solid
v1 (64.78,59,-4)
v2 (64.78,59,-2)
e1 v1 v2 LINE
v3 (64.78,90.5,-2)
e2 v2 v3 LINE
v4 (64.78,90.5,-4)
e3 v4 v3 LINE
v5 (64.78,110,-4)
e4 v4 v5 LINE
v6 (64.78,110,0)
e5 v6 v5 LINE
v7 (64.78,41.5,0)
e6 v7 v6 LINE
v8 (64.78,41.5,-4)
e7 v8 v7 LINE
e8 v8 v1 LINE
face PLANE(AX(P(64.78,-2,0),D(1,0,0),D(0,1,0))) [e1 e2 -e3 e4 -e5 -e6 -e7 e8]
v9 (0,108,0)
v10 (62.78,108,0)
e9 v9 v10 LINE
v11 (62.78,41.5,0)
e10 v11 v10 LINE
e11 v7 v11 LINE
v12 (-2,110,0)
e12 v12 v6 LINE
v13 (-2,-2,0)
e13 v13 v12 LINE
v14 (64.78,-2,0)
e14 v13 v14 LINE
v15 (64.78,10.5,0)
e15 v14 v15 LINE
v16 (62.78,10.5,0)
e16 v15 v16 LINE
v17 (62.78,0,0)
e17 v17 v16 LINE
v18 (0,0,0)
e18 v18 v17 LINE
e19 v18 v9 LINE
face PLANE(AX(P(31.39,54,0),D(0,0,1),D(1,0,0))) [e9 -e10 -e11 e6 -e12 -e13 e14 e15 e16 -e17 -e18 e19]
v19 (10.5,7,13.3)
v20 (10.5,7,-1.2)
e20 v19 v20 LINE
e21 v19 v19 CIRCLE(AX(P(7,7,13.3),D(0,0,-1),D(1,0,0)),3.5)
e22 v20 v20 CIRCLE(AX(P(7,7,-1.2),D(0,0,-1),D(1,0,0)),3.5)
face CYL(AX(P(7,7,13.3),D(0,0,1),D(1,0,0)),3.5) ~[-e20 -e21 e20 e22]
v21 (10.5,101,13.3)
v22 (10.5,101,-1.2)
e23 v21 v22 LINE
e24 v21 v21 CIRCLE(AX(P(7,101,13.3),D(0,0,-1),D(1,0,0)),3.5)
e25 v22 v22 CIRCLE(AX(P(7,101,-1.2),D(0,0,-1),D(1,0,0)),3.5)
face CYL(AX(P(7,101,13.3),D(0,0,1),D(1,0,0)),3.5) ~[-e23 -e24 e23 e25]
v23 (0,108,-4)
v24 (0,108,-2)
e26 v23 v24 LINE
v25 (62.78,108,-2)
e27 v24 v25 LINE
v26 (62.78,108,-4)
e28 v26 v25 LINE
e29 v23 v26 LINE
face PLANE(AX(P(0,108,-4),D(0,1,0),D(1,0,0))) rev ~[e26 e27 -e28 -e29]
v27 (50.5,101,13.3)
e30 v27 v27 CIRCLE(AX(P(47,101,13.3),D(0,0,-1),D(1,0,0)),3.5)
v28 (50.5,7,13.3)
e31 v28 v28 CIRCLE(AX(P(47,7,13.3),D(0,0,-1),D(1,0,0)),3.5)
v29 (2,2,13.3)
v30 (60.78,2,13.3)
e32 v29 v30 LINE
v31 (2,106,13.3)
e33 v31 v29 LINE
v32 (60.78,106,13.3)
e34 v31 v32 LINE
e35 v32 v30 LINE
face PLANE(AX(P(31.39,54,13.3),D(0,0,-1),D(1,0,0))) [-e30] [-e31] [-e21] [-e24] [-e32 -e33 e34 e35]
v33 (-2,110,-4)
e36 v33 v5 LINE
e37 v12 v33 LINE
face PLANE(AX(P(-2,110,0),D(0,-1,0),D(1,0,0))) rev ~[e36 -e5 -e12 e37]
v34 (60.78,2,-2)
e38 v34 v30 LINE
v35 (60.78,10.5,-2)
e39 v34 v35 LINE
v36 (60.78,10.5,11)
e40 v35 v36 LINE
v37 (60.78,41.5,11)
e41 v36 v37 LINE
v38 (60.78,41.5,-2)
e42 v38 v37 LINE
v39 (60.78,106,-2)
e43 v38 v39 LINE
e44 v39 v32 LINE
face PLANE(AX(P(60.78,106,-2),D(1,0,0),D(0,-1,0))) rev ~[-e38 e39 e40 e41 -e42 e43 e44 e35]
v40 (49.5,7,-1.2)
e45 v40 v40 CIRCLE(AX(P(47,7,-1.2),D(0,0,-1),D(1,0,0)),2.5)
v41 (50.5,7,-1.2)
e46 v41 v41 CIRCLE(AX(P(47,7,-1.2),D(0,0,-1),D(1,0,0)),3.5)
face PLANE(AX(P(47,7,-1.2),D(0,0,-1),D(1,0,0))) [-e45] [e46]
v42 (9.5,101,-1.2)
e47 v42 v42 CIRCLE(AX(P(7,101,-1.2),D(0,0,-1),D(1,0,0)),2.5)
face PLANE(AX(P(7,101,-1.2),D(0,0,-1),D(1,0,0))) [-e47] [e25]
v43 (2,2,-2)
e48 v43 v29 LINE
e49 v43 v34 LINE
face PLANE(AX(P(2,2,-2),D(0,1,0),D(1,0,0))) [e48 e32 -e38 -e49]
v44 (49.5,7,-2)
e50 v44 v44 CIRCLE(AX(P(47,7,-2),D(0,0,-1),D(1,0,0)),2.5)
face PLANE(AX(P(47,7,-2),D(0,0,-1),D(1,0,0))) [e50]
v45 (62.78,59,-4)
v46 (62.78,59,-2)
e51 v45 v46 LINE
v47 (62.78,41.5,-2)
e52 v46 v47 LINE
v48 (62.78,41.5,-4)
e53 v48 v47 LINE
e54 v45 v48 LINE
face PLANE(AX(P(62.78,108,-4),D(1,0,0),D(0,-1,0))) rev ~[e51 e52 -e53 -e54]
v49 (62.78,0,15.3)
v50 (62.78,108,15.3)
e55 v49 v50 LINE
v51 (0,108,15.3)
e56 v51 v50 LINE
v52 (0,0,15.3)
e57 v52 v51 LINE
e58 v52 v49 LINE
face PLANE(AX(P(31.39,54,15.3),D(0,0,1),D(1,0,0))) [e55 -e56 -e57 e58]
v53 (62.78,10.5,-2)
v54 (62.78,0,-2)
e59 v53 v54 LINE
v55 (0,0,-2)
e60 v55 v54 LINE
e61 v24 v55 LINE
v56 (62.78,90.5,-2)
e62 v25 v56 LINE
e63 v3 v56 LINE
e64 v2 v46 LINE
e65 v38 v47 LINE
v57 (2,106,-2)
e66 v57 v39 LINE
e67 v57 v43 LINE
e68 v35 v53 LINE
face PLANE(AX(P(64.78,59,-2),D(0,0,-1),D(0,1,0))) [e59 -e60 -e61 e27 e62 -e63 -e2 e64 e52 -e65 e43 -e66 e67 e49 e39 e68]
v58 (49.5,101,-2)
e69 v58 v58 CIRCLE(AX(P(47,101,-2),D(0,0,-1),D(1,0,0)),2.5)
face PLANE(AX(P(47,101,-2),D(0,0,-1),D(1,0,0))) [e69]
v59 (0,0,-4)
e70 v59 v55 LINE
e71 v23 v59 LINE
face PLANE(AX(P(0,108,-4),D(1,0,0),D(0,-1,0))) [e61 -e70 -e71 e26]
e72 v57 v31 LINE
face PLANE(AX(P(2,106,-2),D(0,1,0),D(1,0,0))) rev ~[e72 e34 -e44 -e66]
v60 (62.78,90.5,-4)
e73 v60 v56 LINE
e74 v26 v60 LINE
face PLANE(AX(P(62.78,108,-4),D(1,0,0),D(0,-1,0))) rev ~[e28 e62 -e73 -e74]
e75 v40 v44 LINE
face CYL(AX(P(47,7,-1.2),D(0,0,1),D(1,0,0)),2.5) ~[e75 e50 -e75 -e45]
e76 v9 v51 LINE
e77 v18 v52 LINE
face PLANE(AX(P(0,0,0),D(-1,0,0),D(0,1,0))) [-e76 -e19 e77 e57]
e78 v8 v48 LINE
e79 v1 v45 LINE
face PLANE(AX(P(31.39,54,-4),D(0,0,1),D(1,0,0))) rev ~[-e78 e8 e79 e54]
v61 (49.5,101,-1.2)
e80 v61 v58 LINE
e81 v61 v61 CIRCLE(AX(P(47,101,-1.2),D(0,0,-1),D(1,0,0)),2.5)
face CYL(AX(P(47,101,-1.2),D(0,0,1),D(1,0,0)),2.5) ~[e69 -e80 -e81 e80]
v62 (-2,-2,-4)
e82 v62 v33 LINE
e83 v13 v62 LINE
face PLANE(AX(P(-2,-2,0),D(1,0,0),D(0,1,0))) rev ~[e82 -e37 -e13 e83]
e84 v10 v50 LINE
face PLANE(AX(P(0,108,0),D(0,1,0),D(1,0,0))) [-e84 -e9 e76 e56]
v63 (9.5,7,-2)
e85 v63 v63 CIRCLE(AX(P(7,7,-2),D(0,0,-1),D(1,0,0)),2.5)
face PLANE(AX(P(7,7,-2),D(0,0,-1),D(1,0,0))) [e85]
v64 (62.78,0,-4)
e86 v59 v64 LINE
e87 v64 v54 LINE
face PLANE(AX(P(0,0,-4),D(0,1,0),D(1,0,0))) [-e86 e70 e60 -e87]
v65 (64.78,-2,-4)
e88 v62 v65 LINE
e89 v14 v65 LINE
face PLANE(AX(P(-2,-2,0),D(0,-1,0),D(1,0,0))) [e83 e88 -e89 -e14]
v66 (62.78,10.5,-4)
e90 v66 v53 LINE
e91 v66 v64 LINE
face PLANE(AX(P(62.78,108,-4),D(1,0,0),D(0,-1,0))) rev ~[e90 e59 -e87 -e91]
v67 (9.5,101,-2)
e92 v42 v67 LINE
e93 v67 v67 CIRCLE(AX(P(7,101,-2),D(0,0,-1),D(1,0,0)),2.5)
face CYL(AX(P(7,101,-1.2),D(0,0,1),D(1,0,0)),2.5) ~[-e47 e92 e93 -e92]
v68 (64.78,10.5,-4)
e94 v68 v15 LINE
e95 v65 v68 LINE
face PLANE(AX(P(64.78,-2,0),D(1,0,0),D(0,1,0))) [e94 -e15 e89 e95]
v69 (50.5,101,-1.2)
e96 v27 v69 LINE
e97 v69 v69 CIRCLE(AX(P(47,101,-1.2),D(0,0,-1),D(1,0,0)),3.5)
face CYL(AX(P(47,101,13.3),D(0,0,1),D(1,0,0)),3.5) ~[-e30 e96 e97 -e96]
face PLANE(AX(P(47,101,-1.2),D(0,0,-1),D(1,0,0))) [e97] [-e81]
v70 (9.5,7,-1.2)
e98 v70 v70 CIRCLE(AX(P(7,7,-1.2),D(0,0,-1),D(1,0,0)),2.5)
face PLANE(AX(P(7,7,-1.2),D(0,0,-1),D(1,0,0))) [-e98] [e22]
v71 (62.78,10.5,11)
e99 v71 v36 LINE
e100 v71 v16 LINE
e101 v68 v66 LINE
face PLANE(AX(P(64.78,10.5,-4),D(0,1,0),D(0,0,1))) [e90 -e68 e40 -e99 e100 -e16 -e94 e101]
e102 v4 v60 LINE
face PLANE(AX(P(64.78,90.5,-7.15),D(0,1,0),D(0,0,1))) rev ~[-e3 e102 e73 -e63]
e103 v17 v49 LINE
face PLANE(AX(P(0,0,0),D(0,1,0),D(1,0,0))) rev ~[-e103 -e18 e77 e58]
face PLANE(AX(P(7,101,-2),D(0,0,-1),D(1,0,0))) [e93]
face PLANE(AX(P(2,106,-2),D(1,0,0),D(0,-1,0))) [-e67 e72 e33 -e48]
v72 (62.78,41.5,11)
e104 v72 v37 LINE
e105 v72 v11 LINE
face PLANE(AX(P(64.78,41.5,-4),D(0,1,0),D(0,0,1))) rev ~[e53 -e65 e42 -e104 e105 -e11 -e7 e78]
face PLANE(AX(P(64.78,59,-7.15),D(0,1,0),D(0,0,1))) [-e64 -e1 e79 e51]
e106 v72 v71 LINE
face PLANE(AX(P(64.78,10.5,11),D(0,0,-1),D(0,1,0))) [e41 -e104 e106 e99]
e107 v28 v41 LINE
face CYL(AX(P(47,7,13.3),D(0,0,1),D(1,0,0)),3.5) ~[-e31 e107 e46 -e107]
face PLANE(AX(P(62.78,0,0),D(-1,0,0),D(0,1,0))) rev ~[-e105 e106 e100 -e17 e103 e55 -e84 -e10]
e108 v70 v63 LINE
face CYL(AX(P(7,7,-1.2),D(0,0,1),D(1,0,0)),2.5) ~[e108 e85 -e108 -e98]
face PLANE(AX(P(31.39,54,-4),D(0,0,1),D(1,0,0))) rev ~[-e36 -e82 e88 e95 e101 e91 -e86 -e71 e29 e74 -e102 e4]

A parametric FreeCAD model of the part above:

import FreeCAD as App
import Part
import Sketcher
from FreeCAD import Vector
Q = App.Units.Quantity

doc = App.newDocument("Part")
params = doc.addObject("Spreadsheet::Sheet", "Params")
for row, (alias, value) in enumerate([
    ("sketch1_height", "112 mm"),
    ("sketch1_width", "66.78 mm"),
    ("pad1_length", "4 mm"),
    ("sketch2_height", "108 mm"),
    ("sketch2_width", "62.78 mm"),
    ("pad2_length", "15.3 mm"),
    ("sketch3_height", "108 mm"),
    ("sketch3_width", "62.78 mm"),
    ("pocket1_length", "2 mm"),
    ("sketch4_height", "104 mm"),
    ("sketch4_width", "58.78 mm"),
    ("pocket2_length", "15.3 mm"),
    ("sketch5_diameter", "7 mm"),
    ("pad3_length", "14.5 mm"),
    ("sketch6_diameter", "5 mm"),
    ("pad4_length", "0.8 mm"),
    ("sketch7_width", "31.5 mm"),
    ("sketch7_height", "5.15 mm"),
    ("pocket3_length", "5 mm"),
    ("sketch8_width", "31 mm"),
    ("sketch8_height", "15 mm"),
    ("pocket4_length", "5 mm"),
], start=1):
    params.set(f"A{row}", alias)
    params.set(f"B{row}", "=" + value)
    params.setAlias(f"B{row}", alias)

body = doc.addObject("PartDesign::Body", "Body")

# Sketch on XY plane
sketch1 = body.newObject("Sketcher::SketchObject", "Sketch")
sketch1.AttachmentSupport = (doc.getObject("XY_Plane"), [""])
sketch1.MapMode = "FlatFace"
sketch1.addGeometry([
    Part.LineSegment(Vector(-2, 110, 0), Vector(-2, -2, 0)),
    Part.LineSegment(Vector(-2, -2, 0), Vector(65, -2, 0)),
    Part.LineSegment(Vector(65, -2, 0), Vector(65, 110, 0)),
    Part.LineSegment(Vector(65, 110, 0), Vector(-2, 110, 0)),
], False)
sketch1.addConstraint([
    Sketcher.Constraint("Coincident", 0, 2, 1, 1),
    Sketcher.Constraint("Coincident", 1, 2, 2, 1),
    Sketcher.Constraint("Coincident", 2, 2, 3, 1),
    Sketcher.Constraint("Coincident", 3, 2, 0, 1),
    Sketcher.Constraint("Vertical", 0),
    Sketcher.Constraint("Horizontal", 1),
    Sketcher.Constraint("Vertical", 2),
    Sketcher.Constraint("Horizontal", 3),
    Sketcher.Constraint("DistanceY", 0, 2, 0, 1, Q("112 mm")),
    Sketcher.Constraint("DistanceX", 0, 2, -1, 1, Q("2 mm")),
    Sketcher.Constraint("DistanceY", 0, 2, -1, 1, Q("2 mm")),
    Sketcher.Constraint("DistanceX", 1, 1, 1, 2, Q("66.78 mm")),
])
sketch1.setExpression("Constraints[8]", "Params.sketch1_height")
sketch1.setExpression("Constraints[11]", "Params.sketch1_width")
pad1 = body.newObject("PartDesign::Pad", "Pad")
pad1.Profile = sketch1
pad1.setExpression("Length", "Params.pad1_length")
pad1.Reversed = True

# Sketch on XY plane
sketch2 = body.newObject("Sketcher::SketchObject", "Sketch001")
sketch2.AttachmentSupport = (doc.getObject("XY_Plane"), [""])
sketch2.MapMode = "FlatFace"
sketch2.addGeometry([
    Part.LineSegment(Vector(0, 108, 0), Vector(0, 0, 0)),
    Part.LineSegment(Vector(0, 0, 0), Vector(63, 0, 0)),
    Part.LineSegment(Vector(63, 0, 0), Vector(63, 108, 0)),
    Part.LineSegment(Vector(63, 108, 0), Vector(0, 108, 0)),
], False)
sketch2.addConstraint([
    Sketcher.Constraint("Coincident", 0, 2, 1, 1),
    Sketcher.Constraint("Coincident", 1, 2, 2, 1),
    Sketcher.Constraint("Coincident", 2, 2, 3, 1),
    Sketcher.Constraint("Coincident", 3, 2, 0, 1),
    Sketcher.Constraint("Vertical", 0),
    Sketcher.Constraint("Horizontal", 1),
    Sketcher.Constraint("Vertical", 2),
    Sketcher.Constraint("Horizontal", 3),
    Sketcher.Constraint("Coincident", 0, 2, -1, 1),
    Sketcher.Constraint("DistanceY", 0, 2, 0, 1, Q("108 mm")),
    Sketcher.Constraint("DistanceX", 1, 1, 1, 2, Q("62.78 mm")),
])
sketch2.setExpression("Constraints[9]", "Params.sketch2_height")
sketch2.setExpression("Constraints[10]", "Params.sketch2_width")
pad2 = body.newObject("PartDesign::Pad", "Pad001")
pad2.Profile = sketch2
pad2.setExpression("Length", "Params.pad2_length")

# Sketch on XY plane
sketch3 = body.newObject("Sketcher::SketchObject", "Sketch002")
sketch3.AttachmentSupport = (doc.getObject("XY_Plane"), [""])
sketch3.MapMode = "FlatFace"
sketch3.AttachmentOffset = App.Placement(Vector(0, 0, -4), App.Rotation())
sketch3.addGeometry([
    Part.LineSegment(Vector(0, 0, 0), Vector(0, 108, 0)),
    Part.LineSegment(Vector(0, 108, 0), Vector(63, 108, 0)),
    Part.LineSegment(Vector(63, 108, 0), Vector(63, 0, 0)),
    Part.LineSegment(Vector(63, 0, 0), Vector(0, 0, 0)),
], False)
sketch3.addConstraint([
    Sketcher.Constraint("Coincident", 0, 2, 1, 1),
    Sketcher.Constraint("Coincident", 1, 2, 2, 1),
    Sketcher.Constraint("Coincident", 2, 2, 3, 1),
    Sketcher.Constraint("Coincident", 3, 2, 0, 1),
    Sketcher.Constraint("Vertical", 0),
    Sketcher.Constraint("Horizontal", 1),
    Sketcher.Constraint("Vertical", 2),
    Sketcher.Constraint("Horizontal", 3),
    Sketcher.Constraint("Coincident", 3, 2, -1, 1),
    Sketcher.Constraint("DistanceY", 0, 1, 0, 2, Q("108 mm")),
    Sketcher.Constraint("DistanceX", 1, 1, 1, 2, Q("62.78 mm")),
])
sketch3.setExpression("Constraints[9]", "Params.sketch3_height")
sketch3.setExpression("Constraints[10]", "Params.sketch3_width")
pocket1 = body.newObject("PartDesign::Pocket", "Pocket")
pocket1.Profile = sketch3
pocket1.setExpression("Length", "Params.pocket1_length")
pocket1.Reversed = True

# Sketch on XY plane
sketch4 = body.newObject("Sketcher::SketchObject", "Sketch003")
sketch4.AttachmentSupport = (doc.getObject("XY_Plane"), [""])
sketch4.MapMode = "FlatFace"
sketch4.AttachmentOffset = App.Placement(Vector(0, 0, -2), App.Rotation())
sketch4.addGeometry([
    Part.LineSegment(Vector(2, 2, 0), Vector(2, 106, 0)),
    Part.LineSegment(Vector(2, 106, 0), Vector(61, 106, 0)),
    Part.LineSegment(Vector(61, 106, 0), Vector(61, 2, 0)),
    Part.LineSegment(Vector(61, 2, 0), Vector(2, 2, 0)),
], False)
sketch4.addConstraint([
    Sketcher.Constraint("Coincident", 0, 2, 1, 1),
    Sketcher.Constraint("Coincident", 1, 2, 2, 1),
    Sketcher.Constraint("Coincident", 2, 2, 3, 1),
    Sketcher.Constraint("Coincident", 3, 2, 0, 1),
    Sketcher.Constraint("Vertical", 0),
    Sketcher.Constraint("Horizontal", 1),
    Sketcher.Constraint("Vertical", 2),
    Sketcher.Constraint("Horizontal", 3),
    Sketcher.Constraint("DistanceY", 0, 1, 0, 2, Q("104 mm")),
    Sketcher.Constraint("DistanceX", -1, 1, 0, 2, Q("2 mm")),
    Sketcher.Constraint("DistanceY", -1, 1, 0, 2, Q("106 mm")),
    Sketcher.Constraint("DistanceX", 1, 1, 1, 2, Q("58.78 mm")),
])
sketch4.setExpression("Constraints[8]", "Params.sketch4_height")
sketch4.setExpression("Constraints[11]", "Params.sketch4_width")
pocket2 = body.newObject("PartDesign::Pocket", "Pocket001")
pocket2.Profile = sketch4
pocket2.setExpression("Length", "Params.pocket2_length")
pocket2.Reversed = True

# Sketch on XY plane
sketch5 = body.newObject("Sketcher::SketchObject", "Sketch004")
sketch5.AttachmentSupport = (doc.getObject("XY_Plane"), [""])
sketch5.MapMode = "FlatFace"
sketch5.AttachmentOffset = App.Placement(Vector(0, 0, 13.3), App.Rotation())
sketch5.addGeometry([
    Part.Circle(Vector(7, 7, 0), Vector(0, 0, 1), 3.5),
    Part.Circle(Vector(47, 7, 0), Vector(0, 0, 1), 3.5),
    Part.Circle(Vector(7, 101, 0), Vector(0, 0, 1), 3.5),
    Part.Circle(Vector(47, 101, 0), Vector(0, 0, 1), 3.5),
], False)
sketch5.addConstraint([
    Sketcher.Constraint("Equal", 0, 1),
    Sketcher.Constraint("Equal", 1, 2),
    Sketcher.Constraint("Equal", 2, 3),
    Sketcher.Constraint("Horizontal", 0, 3, 1, 3),
    Sketcher.Constraint("Horizontal", 2, 3, 3, 3),
    Sketcher.Constraint("Vertical", 0, 3, 2, 3),
    Sketcher.Constraint("Vertical", 1, 3, 3, 3),
    Sketcher.Constraint("Diameter", 0, Q("7 mm")),
    Sketcher.Constraint("DistanceX", -1, 1, 0, 3, Q("7 mm")),
    Sketcher.Constraint("DistanceY", -1, 1, 0, 3, Q("7 mm")),
    Sketcher.Constraint("DistanceX", -1, 1, 1, 3, Q("47 mm")),
    Sketcher.Constraint("DistanceY", -1, 1, 2, 3, Q("101 mm")),
])
sketch5.setExpression("Constraints[7]", "Params.sketch5_diameter")
pad3 = body.newObject("PartDesign::Pad", "Pad002")
pad3.Profile = sketch5
pad3.setExpression("Length", "Params.pad3_length")
pad3.Reversed = True

# Sketch on XY plane
sketch6 = body.newObject("Sketcher::SketchObject", "Sketch005")
sketch6.AttachmentSupport = (doc.getObject("XY_Plane"), [""])
sketch6.MapMode = "FlatFace"
sketch6.AttachmentOffset = App.Placement(Vector(0, 0, -1.2), App.Rotation())
sketch6.addGeometry([
    Part.Circle(Vector(7, 7, 0), Vector(0, 0, 1), 2.5),
    Part.Circle(Vector(47, 7, 0), Vector(0, 0, 1), 2.5),
    Part.Circle(Vector(7, 101, 0), Vector(0, 0, 1), 2.5),
    Part.Circle(Vector(47, 101, 0), Vector(0, 0, 1), 2.5),
], False)
sketch6.addConstraint([
    Sketcher.Constraint("Equal", 0, 1),
    Sketcher.Constraint("Equal", 1, 2),
    Sketcher.Constraint("Equal", 2, 3),
    Sketcher.Constraint("Horizontal", 0, 3, 1, 3),
    Sketcher.Constraint("Horizontal", 2, 3, 3, 3),
    Sketcher.Constraint("Vertical", 0, 3, 2, 3),
    Sketcher.Constraint("Vertical", 1, 3, 3, 3),
    Sketcher.Constraint("Diameter", 0, Q("5 mm")),
    Sketcher.Constraint("DistanceX", -1, 1, 0, 3, Q("7 mm")),
    Sketcher.Constraint("DistanceY", -1, 1, 0, 3, Q("7 mm")),
    Sketcher.Constraint("DistanceX", -1, 1, 1, 3, Q("47 mm")),
    Sketcher.Constraint("DistanceY", -1, 1, 2, 3, Q("101 mm")),
])
sketch6.setExpression("Constraints[7]", "Params.sketch6_diameter")
pad4 = body.newObject("PartDesign::Pad", "Pad003")
pad4.Profile = sketch6
pad4.setExpression("Length", "Params.pad4_length")
pad4.Reversed = True

# Sketch on YZ plane
sketch7 = body.newObject("Sketcher::SketchObject", "Sketch006")
sketch7.AttachmentSupport = (doc.getObject("YZ_Plane"), [""])
sketch7.MapMode = "FlatFace"
sketch7.AttachmentOffset = App.Placement(Vector(0, 0, 64.78), App.Rotation())
sketch7.addGeometry([
    Part.LineSegment(Vector(59, -2, 0), Vector(59, -7, 0)),
    Part.LineSegment(Vector(59, -7, 0), Vector(90, -7, 0)),
    Part.LineSegment(Vector(90, -7, 0), Vector(90, -2, 0)),
    Part.LineSegment(Vector(90, -2, 0), Vector(59, -2, 0)),
], False)
sketch7.addConstraint([
    Sketcher.Constraint("Coincident", 0, 2, 1, 1),
    Sketcher.Constraint("Coincident", 1, 2, 2, 1),
    Sketcher.Constraint("Coincident", 2, 2, 3, 1),
    Sketcher.Constraint("Coincident", 3, 2, 0, 1),
    Sketcher.Constraint("Vertical", 0),
    Sketcher.Constraint("Horizontal", 1),
    Sketcher.Constraint("Vertical", 2),
    Sketcher.Constraint("Horizontal", 3),
    Sketcher.Constraint("DistanceX", 1, 1, 1, 2, Q("31.5 mm")),
    Sketcher.Constraint("DistanceX", -1, 1, 0, 2, Q("59 mm")),
    Sketcher.Constraint("DistanceY", 2, 2, -1, 1, Q("2 mm")),
    Sketcher.Constraint("DistanceY", 0, 2, 0, 1, Q("5.15 mm")),
])
sketch7.setExpression("Constraints[8]", "Params.sketch7_width")
sketch7.setExpression("Constraints[11]", "Params.sketch7_height")
pocket3 = body.newObject("PartDesign::Pocket", "Pocket002")
pocket3.Profile = sketch7
pocket3.setExpression("Length", "Params.pocket3_length")

# Sketch on YZ plane
sketch8 = body.newObject("Sketcher::SketchObject", "Sketch007")
sketch8.AttachmentSupport = (doc.getObject("YZ_Plane"), [""])
sketch8.MapMode = "FlatFace"
sketch8.AttachmentOffset = App.Placement(Vector(0, 0, 64.78), App.Rotation())
sketch8.addGeometry([
    Part.LineSegment(Vector(10, 11, 0), Vector(10, -4, 0)),
    Part.LineSegment(Vector(10, -4, 0), Vector(42, -4, 0)),
    Part.LineSegment(Vector(42, -4, 0), Vector(42, 11, 0)),
    Part.LineSegment(Vector(42, 11, 0), Vector(10, 11, 0)),
], False)
sketch8.addConstraint([
    Sketcher.Constraint("Coincident", 0, 2, 1, 1),
    Sketcher.Constraint("Coincident", 1, 2, 2, 1),
    Sketcher.Constraint("Coincident", 2, 2, 3, 1),
    Sketcher.Constraint("Coincident", 3, 2, 0, 1),
    Sketcher.Constraint("Vertical", 0),
    Sketcher.Constraint("Horizontal", 1),
    Sketcher.Constraint("Vertical", 2),
    Sketcher.Constraint("Horizontal", 3),
    Sketcher.Constraint("DistanceX", 1, 1, 1, 2, Q("31 mm")),
    Sketcher.Constraint("DistanceY", 0, 2, 0, 1, Q("15 mm")),
    Sketcher.Constraint("DistanceY", 0, 2, -1, 1, Q("4 mm")),
    Sketcher.Constraint("DistanceX", -1, 1, 0, 2, Q("10.5 mm")),
])
sketch8.setExpression("Constraints[8]", "Params.sketch8_width")
sketch8.setExpression("Constraints[9]", "Params.sketch8_height")
pocket4 = body.newObject("PartDesign::Pocket", "Pocket003")
pocket4.Profile = sketch8
pocket4.setExpression("Length", "Params.pocket4_length")

doc.recompute()
